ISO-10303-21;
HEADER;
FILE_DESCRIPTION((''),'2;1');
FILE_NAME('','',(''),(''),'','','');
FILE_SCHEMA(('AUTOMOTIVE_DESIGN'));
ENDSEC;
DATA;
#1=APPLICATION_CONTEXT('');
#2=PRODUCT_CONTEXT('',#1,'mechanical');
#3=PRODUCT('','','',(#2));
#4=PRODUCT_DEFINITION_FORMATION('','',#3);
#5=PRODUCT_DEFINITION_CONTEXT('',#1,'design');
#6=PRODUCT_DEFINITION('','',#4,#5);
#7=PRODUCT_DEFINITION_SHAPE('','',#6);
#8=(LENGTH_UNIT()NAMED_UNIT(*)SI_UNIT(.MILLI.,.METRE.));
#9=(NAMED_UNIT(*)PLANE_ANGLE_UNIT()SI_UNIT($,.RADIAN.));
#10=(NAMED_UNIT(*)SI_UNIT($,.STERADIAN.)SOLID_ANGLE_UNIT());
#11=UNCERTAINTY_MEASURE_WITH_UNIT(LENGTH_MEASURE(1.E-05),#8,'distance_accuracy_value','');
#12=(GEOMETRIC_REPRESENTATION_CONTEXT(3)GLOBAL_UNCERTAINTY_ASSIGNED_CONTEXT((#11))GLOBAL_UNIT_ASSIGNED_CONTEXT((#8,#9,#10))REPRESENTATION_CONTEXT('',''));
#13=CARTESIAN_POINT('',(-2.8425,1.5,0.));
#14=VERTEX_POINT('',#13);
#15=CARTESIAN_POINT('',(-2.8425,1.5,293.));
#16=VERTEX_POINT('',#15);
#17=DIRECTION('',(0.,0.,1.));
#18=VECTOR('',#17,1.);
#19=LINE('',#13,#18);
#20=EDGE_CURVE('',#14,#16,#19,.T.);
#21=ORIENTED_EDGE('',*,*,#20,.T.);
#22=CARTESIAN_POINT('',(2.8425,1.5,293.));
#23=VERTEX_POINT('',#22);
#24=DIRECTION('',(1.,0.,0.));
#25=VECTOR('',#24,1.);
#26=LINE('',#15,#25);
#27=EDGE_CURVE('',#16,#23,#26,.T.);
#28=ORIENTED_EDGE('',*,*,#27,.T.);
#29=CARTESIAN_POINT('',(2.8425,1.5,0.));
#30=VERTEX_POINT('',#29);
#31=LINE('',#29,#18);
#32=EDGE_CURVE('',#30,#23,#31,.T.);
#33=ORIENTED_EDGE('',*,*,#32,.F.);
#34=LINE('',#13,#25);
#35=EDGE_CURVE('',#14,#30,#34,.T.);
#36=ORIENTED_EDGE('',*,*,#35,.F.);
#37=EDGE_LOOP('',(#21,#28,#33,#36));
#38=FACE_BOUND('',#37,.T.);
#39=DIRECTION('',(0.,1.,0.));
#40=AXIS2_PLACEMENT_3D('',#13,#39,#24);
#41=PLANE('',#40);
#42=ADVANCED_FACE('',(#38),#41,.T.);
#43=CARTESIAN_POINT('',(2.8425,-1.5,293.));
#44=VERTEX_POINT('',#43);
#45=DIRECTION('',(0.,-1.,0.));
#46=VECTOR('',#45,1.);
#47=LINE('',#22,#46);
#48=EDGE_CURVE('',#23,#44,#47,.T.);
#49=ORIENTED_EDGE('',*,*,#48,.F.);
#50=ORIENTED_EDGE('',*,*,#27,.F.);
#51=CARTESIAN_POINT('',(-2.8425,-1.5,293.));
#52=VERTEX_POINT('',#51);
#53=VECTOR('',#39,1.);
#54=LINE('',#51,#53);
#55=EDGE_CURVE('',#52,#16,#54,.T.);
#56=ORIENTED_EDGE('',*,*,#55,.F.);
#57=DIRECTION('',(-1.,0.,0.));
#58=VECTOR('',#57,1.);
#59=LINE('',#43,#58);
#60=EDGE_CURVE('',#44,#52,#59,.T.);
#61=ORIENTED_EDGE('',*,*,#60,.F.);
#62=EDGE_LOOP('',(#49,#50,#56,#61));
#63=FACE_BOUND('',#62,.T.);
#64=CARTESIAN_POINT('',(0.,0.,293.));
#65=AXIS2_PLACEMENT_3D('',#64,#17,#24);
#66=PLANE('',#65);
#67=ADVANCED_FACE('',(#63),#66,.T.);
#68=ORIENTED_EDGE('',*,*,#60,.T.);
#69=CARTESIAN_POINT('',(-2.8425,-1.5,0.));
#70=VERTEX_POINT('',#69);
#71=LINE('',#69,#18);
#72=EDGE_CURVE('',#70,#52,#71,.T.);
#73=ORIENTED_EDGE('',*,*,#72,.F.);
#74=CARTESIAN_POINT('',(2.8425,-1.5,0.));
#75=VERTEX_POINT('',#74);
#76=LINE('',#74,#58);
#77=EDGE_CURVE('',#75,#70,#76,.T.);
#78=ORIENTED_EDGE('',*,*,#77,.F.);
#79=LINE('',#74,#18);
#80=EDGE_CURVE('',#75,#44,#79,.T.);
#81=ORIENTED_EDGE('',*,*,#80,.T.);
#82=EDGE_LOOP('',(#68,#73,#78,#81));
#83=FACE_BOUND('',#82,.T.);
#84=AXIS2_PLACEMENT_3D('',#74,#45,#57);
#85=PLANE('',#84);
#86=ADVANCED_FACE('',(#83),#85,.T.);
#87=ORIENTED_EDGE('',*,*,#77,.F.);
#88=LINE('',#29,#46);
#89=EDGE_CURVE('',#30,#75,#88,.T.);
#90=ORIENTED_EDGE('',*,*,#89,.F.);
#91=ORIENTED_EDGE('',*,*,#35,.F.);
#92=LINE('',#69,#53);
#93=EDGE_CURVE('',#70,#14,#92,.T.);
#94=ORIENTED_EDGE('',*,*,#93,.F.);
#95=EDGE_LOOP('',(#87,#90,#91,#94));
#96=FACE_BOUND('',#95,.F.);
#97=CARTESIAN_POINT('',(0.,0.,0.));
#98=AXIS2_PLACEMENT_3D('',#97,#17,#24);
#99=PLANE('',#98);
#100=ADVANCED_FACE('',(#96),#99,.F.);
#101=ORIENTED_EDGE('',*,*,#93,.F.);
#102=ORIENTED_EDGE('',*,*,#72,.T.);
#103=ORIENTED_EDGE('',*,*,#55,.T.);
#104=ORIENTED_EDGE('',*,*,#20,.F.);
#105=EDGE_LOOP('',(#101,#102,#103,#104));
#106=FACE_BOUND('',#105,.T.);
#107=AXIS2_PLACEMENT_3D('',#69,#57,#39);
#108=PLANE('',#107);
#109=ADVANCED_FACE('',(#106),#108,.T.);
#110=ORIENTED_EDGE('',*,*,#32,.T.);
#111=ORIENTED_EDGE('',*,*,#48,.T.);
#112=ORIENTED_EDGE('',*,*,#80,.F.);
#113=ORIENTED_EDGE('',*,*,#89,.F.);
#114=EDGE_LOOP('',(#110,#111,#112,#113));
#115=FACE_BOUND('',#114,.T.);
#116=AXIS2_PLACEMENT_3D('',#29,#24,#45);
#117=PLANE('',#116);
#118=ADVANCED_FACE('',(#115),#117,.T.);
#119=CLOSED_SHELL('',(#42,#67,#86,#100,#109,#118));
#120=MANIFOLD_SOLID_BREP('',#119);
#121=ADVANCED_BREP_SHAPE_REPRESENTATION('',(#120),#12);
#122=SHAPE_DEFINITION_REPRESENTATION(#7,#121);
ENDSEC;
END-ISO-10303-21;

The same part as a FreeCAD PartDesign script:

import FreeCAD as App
import Part
import Sketcher

V = App.Vector
Q = App.Units.Quantity

doc = App.newDocument("Part")
params = doc.addObject("Spreadsheet::Sheet", "Params")
for row, (alias, value) in enumerate([
    ("sketch1_height", "3 mm"),
    ("pad1_length", "293 mm"),
], start=1):
    params.set(f"A{row}", alias)
    params.set(f"B{row}", "=" + value)
    params.setAlias(f"B{row}", alias)

body = doc.addObject("PartDesign::Body", "Body")

sketch1 = doc.addObject("Sketcher::SketchObject", "Sketch")
body.addObject(sketch1)
sketch1.AttachmentSupport = (doc.XY_Plane, [""])
sketch1.MapMode = "FlatFace"
sketch1.addGeometry([
    Part.LineSegment(V(2.8, 1.5, 0), V(-2.8, 1.5, 0)),
    Part.LineSegment(V(-2.8, 1.5, 0), V(-2.8, -1.5, 0)),
    Part.LineSegment(V(-2.8, -1.5, 0), V(2.8, -1.5, 0)),
    Part.LineSegment(V(2.8, -1.5, 0), V(2.8, 1.5, 0)),
], False)
sketch1.addConstraint([
    Sketcher.Constraint("Coincident", 0, 2, 1, 1),
    Sketcher.Constraint("Coincident", 1, 2, 2, 1),
    Sketcher.Constraint("Coincident", 2, 2, 3, 1),
    Sketcher.Constraint("Coincident", 3, 2, 0, 1),
    Sketcher.Constraint("Horizontal", 0),
    Sketcher.Constraint("Vertical", 1),
    Sketcher.Constraint("Horizontal", 2),
    Sketcher.Constraint("Vertical", 3),
    Sketcher.Constraint("Symmetric", 0, 2, 2, 2, -1, 1),
    Sketcher.Constraint("DistanceY", 1, 2, 1, 1, Q("3 mm")),
    Sketcher.Constraint("DistanceX", 0, 2, 0, 1, Q("5.685 mm")),
])
sketch1.setExpression("Constraints[9]", "Params.sketch1_height")
pad1 = doc.addObject("PartDesign::Pad", "Pad")
body.addObject(pad1)
pad1.Profile = sketch1
pad1.setExpression("Length", "Params.pad1_length")

doc.recompute()
